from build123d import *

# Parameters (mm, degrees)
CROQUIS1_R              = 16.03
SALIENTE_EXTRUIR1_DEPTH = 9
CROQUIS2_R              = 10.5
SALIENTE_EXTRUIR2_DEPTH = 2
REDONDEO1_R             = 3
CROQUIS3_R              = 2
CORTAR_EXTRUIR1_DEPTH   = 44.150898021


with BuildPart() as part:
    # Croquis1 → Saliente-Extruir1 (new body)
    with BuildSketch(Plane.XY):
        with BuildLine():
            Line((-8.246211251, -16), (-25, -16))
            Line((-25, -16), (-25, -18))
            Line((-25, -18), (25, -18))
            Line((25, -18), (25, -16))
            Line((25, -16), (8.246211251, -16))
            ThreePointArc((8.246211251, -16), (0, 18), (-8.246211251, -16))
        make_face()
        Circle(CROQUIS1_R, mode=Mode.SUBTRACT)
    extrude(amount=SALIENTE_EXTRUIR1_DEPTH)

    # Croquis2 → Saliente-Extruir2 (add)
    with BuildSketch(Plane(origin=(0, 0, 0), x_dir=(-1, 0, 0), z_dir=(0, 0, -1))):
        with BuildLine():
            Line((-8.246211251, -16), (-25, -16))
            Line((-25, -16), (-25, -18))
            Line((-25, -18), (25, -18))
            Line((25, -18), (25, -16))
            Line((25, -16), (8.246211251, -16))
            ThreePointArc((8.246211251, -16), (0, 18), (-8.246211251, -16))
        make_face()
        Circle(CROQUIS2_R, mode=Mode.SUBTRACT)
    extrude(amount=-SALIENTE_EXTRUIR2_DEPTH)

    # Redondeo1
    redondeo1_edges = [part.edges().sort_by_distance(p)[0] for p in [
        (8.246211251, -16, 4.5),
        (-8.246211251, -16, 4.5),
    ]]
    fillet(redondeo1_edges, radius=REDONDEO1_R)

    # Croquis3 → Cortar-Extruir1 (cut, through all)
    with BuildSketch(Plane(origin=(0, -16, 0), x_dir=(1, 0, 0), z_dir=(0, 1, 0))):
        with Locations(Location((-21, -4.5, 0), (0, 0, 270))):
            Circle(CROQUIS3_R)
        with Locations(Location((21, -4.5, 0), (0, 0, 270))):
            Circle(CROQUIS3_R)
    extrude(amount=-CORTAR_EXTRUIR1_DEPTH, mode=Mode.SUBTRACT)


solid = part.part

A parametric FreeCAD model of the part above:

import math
import FreeCAD as App
import Part
import Sketcher
Q = App.Units.Quantity


def edges_at(feature, points):
    """Names of the edges that pass closest to the given points."""
    edges = feature.Shape.Edges
    near = lambda p: min(range(len(edges)), key=lambda i: edges[i].distToShape(Part.Vertex(*p))[0])
    return sorted({f"Edge{near(p) + 1}" for p in points})

doc = App.newDocument("Part")
params = doc.addObject("Spreadsheet::Sheet", "Params")
for row, (alias, value) in enumerate([
    ("sketch1_radius", "18 mm"),
    ("sketch1_diameter", "32.06 mm"),
    ("sketch1_width", "50 mm"),
    ("sketch1_height", "2 mm"),
    ("pad1_length", "9 mm"),
    ("sketch2_diameter", "21 mm"),
    ("sketch2_radius", "18 mm"),
    ("sketch2_width", "50 mm"),
    ("sketch2_height", "2 mm"),
    ("pad2_length", "2 mm"),
    ("fillet_radius", "3 mm"),
    ("sketch3_diameter", "4 mm"),
], start=1):
    params.set(f"A{row}", alias)
    params.set(f"B{row}", "=" + value)
    params.setAlias(f"B{row}", alias)

body = doc.addObject("PartDesign::Body", "Body")

sketch1 = doc.addObject("Sketcher::SketchObject", "Sketch")
body.addObject(sketch1)
sketch1.AttachmentSupport = (doc.XY_Plane, [""])
sketch1.MapMode = "FlatFace"
sketch1.addGeometry([
    Part.LineSegment(App.Vector(-8.2, -16, 0), App.Vector(-25, -16, 0)),
    Part.LineSegment(App.Vector(-25, -16, 0), App.Vector(-25, -18, 0)),
    Part.LineSegment(App.Vector(-25, -18, 0), App.Vector(25, -18, 0)),
    Part.LineSegment(App.Vector(25, -18, 0), App.Vector(25, -16, 0)),
    Part.LineSegment(App.Vector(25, -16, 0), App.Vector(8.2, -16, 0)),
    Part.ArcOfCircle(Part.Circle(App.Vector(0, 0, 0), App.Vector(0, 0, 1), 18), math.radians(-63), math.radians(243)),
    Part.Circle(App.Vector(0, 0, 0), App.Vector(0, 0, 1), 16),
], False)
sketch1.addConstraint([
    Sketcher.Constraint("Coincident", 0, 2, 1, 1),
    Sketcher.Constraint("Coincident", 1, 2, 2, 1),
    Sketcher.Constraint("Coincident", 2, 2, 3, 1),
    Sketcher.Constraint("Coincident", 3, 2, 4, 1),
    Sketcher.Constraint("Coincident", 4, 2, 5, 1),
    Sketcher.Constraint("Coincident", 5, 2, 0, 1),
    Sketcher.Constraint("Horizontal", 0),
    Sketcher.Constraint("Vertical", 1),
    Sketcher.Constraint("Horizontal", 2),
    Sketcher.Constraint("Vertical", 3),
    Sketcher.Constraint("Horizontal", 4),
    Sketcher.Constraint("Coincident", 5, 3, -1, 1),
    Sketcher.Constraint("Coincident", 6, 3, -1, 1),
    Sketcher.Constraint("Symmetric", 0, 2, 3, 2, -2),
    Sketcher.Constraint("Radius", 5, Q("18 mm")),
    Sketcher.Constraint("Diameter", 6, Q("32.06 mm")),
    Sketcher.Constraint("DistanceX", 2, 1, 2, 2, Q("50 mm")),
    Sketcher.Constraint("DistanceY", 1, 2, 1, 1, Q("2 mm")),
    Sketcher.Constraint("DistanceY", 0, 2, -1, 1, Q("16 mm")),
])
sketch1.setExpression("Constraints[14]", "Params.sketch1_radius")
sketch1.setExpression("Constraints[15]", "Params.sketch1_diameter")
sketch1.setExpression("Constraints[16]", "Params.sketch1_width")
sketch1.setExpression("Constraints[17]", "Params.sketch1_height")
pad1 = doc.addObject("PartDesign::Pad", "Pad")
body.addObject(pad1)
pad1.Profile = sketch1
pad1.setExpression("Length", "Params.pad1_length")

sketch2 = doc.addObject("Sketcher::SketchObject", "Sketch001")
body.addObject(sketch2)
sketch2.AttachmentSupport = (doc.XY_Plane, [""])
sketch2.MapMode = "FlatFace"
sketch2.addGeometry([
    Part.LineSegment(App.Vector(8.2, -16, 0), App.Vector(25, -16, 0)),
    Part.LineSegment(App.Vector(25, -16, 0), App.Vector(25, -18, 0)),
    Part.LineSegment(App.Vector(25, -18, 0), App.Vector(-25, -18, 0)),
    Part.LineSegment(App.Vector(-25, -18, 0), App.Vector(-25, -16, 0)),
    Part.LineSegment(App.Vector(-25, -16, 0), App.Vector(-8.2, -16, 0)),
    Part.ArcOfCircle(Part.Circle(App.Vector(0, 0, 0), App.Vector(0, 0, 1), 18), math.radians(-63), math.radians(243)),
    Part.Circle(App.Vector(0, 0, 0), App.Vector(0, 0, 1), 10.5),
], False)
sketch2.addConstraint([
    Sketcher.Constraint("Coincident", 0, 2, 1, 1),
    Sketcher.Constraint("Coincident", 1, 2, 2, 1),
    Sketcher.Constraint("Coincident", 2, 2, 3, 1),
    Sketcher.Constraint("Coincident", 3, 2, 4, 1),
    Sketcher.Constraint("Coincident", 4, 2, 5, 2),
    Sketcher.Constraint("Coincident", 5, 1, 0, 1),
    Sketcher.Constraint("Horizontal", 0),
    Sketcher.Constraint("Vertical", 1),
    Sketcher.Constraint("Horizontal", 2),
    Sketcher.Constraint("Vertical", 3),
    Sketcher.Constraint("Horizontal", 4),
    Sketcher.Constraint("Coincident", 5, 3, -1, 1),
    Sketcher.Constraint("Coincident", 6, 3, -1, 1),
    Sketcher.Constraint("Symmetric", 0, 2, 3, 2, -2),
    Sketcher.Constraint("Diameter", 6, Q("21 mm")),
    Sketcher.Constraint("Radius", 5, Q("18 mm")),
    Sketcher.Constraint("DistanceX", 2, 2, 2, 1, Q("50 mm")),
    Sketcher.Constraint("DistanceY", 1, 2, 1, 1, Q("2 mm")),
    Sketcher.Constraint("DistanceY", 0, 2, -1, 1, Q("16 mm")),
])
sketch2.setExpression("Constraints[14]", "Params.sketch2_diameter")
sketch2.setExpression("Constraints[15]", "Params.sketch2_radius")
sketch2.setExpression("Constraints[16]", "Params.sketch2_width")
sketch2.setExpression("Constraints[17]", "Params.sketch2_height")
pad2 = doc.addObject("PartDesign::Pad", "Pad001")
body.addObject(pad2)
pad2.Profile = sketch2
pad2.setExpression("Length", "Params.pad2_length")
doc.recompute()

fillet = doc.addObject("PartDesign::Fillet", "Fillet")
body.addObject(fillet)
fillet.Base = (pad2, edges_at(pad2, [(8.246, -16, 4.5), (-8.246, -16, 4.5)]))
fillet.setExpression("Radius", "Params.fillet_radius")

sketch3 = doc.addObject("Sketcher::SketchObject", "Sketch002")
body.addObject(sketch3)
sketch3.AttachmentSupport = (doc.XZ_Plane, [""])
sketch3.MapMode = "FlatFace"
sketch3.AttachmentOffset = App.Placement(App.Vector(0, 0, 16), App.Rotation())
sketch3.addGeometry([
    Part.Circle(App.Vector(-21, 4.5, 0), App.Vector(0, 0, 1), 2),
    Part.Circle(App.Vector(21, 4.5, 0), App.Vector(0, 0, 1), 2),
], False)
sketch3.addConstraint([
    Sketcher.Constraint("Equal", 0, 1),
    Sketcher.Constraint("Symmetric", 0, 3, 1, 3, -2),
    Sketcher.Constraint("Diameter", 0, Q("4 mm")),
    Sketcher.Constraint("DistanceX", 0, 3, -1, 1, Q("21 mm")),
    Sketcher.Constraint("DistanceY", -1, 1, 0, 3, Q("4.5 mm")),
])
sketch3.setExpression("Constraints[2]", "Params.sketch3_diameter")
pocket1 = doc.addObject("PartDesign::Pocket", "Pocket")
body.addObject(pocket1)
pocket1.Profile = sketch3
pocket1.Type = "ThroughAll"
pocket1.Reversed = True

doc.recompute()
